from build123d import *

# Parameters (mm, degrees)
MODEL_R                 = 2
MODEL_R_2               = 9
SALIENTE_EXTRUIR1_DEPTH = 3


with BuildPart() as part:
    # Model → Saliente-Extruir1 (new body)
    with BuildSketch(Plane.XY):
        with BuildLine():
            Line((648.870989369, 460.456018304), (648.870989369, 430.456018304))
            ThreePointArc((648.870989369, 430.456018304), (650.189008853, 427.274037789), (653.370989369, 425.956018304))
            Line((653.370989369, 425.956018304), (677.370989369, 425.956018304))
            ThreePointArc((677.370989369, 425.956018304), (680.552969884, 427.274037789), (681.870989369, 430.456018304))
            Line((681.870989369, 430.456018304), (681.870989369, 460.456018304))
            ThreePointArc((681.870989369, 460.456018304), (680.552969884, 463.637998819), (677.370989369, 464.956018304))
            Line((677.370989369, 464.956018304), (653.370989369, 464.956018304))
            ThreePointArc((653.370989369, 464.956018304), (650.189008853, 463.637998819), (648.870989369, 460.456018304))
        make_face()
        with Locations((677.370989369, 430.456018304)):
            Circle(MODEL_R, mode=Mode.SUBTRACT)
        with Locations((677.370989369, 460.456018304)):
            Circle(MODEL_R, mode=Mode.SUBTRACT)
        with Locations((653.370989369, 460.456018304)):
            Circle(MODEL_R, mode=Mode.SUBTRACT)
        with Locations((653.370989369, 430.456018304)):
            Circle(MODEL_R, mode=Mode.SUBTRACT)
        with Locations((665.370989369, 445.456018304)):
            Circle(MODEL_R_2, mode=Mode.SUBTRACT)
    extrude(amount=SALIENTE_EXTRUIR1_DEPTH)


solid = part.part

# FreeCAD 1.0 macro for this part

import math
import FreeCAD as App
import Part
import Sketcher

doc = App.newDocument("Part")
body = doc.addObject("PartDesign::Body", "Body")

sketch1 = body.newObject("Sketcher::SketchObject", "Sketch")
sketch1.AttachmentSupport = (doc.getObject("XY_Plane"), [""])
sketch1.MapMode = "FlatFace"
sketch1.addGeometry([
    Part.LineSegment(App.Vector(648.870989, 460.456018, 0), App.Vector(648.870989, 430.456018, 0)),
    Part.ArcOfCircle(Part.Circle(App.Vector(653.370989, 430.456018, 0), App.Vector(0, 0, 1), 4.5), math.radians(180), math.radians(270)),
    Part.LineSegment(App.Vector(653.370989, 425.956018, 0), App.Vector(677.370989, 425.956018, 0)),
    Part.ArcOfCircle(Part.Circle(App.Vector(677.370989, 430.456018, 0), App.Vector(0, 0, 1), 4.5), math.radians(-90), math.radians(0)),
    Part.LineSegment(App.Vector(681.870989, 430.456018, 0), App.Vector(681.870989, 460.456018, 0)),
    Part.ArcOfCircle(Part.Circle(App.Vector(677.370989, 460.456018, 0), App.Vector(0, 0, 1), 4.5), math.radians(0), math.radians(90)),
    Part.LineSegment(App.Vector(677.370989, 464.956018, 0), App.Vector(653.370989, 464.956018, 0)),
    Part.ArcOfCircle(Part.Circle(App.Vector(653.370989, 460.456018, 0), App.Vector(0, 0, 1), 4.5), math.radians(90), math.radians(180)),
    Part.Circle(App.Vector(653.370989, 430.456018, 0), App.Vector(0, 0, 1), 2),
    Part.Circle(App.Vector(677.370989, 430.456018, 0), App.Vector(0, 0, 1), 2),
    Part.Circle(App.Vector(653.370989, 460.456018, 0), App.Vector(0, 0, 1), 2),
    Part.Circle(App.Vector(665.370989, 445.456018, 0), App.Vector(0, 0, 1), 9),
    Part.Circle(App.Vector(677.370989, 460.456018, 0), App.Vector(0, 0, 1), 2),
], False)
sketch1.addConstraint([
    Sketcher.Constraint("Tangent", 0, 2, 1, 1),
    Sketcher.Constraint("Tangent", 1, 2, 2, 1),
    Sketcher.Constraint("Tangent", 2, 2, 3, 1),
    Sketcher.Constraint("Tangent", 3, 2, 4, 1),
    Sketcher.Constraint("Tangent", 4, 2, 5, 1),
    Sketcher.Constraint("Tangent", 5, 2, 6, 1),
    Sketcher.Constraint("Tangent", 6, 2, 7, 1),
    Sketcher.Constraint("Tangent", 7, 2, 0, 1),
    Sketcher.Constraint("Vertical", 0),
    Sketcher.Constraint("Horizontal", 2),
    Sketcher.Constraint("Vertical", 4),
    Sketcher.Constraint("Horizontal", 6),
    Sketcher.Constraint("Coincident", 8, 3, 1, 3),
    Sketcher.Constraint("Coincident", 9, 3, 3, 3),
    Sketcher.Constraint("Coincident", 10, 3, 7, 3),
    Sketcher.Constraint("Coincident", 12, 3, 5, 3),
    Sketcher.Constraint("Equal", 1, 3),
    Sketcher.Constraint("Equal", 3, 5),
    Sketcher.Constraint("Equal", 5, 7),
    Sketcher.Constraint("Equal", 8, 9),
    Sketcher.Constraint("Equal", 9, 10),
    Sketcher.Constraint("Equal", 10, 12),
    Sketcher.Constraint("Diameter", 8, 4.0),
    Sketcher.Constraint("Diameter", 11, 18.0),
    Sketcher.Constraint("Radius", 1, 4.5),
    Sketcher.Constraint("DistanceX", 2, 1, 2, 2, 24.0),
    Sketcher.Constraint("DistanceY", 0, 2, 0, 1, 30.0),
    Sketcher.Constraint("DistanceX", 11, 3, 3, 3, 12.0),
    Sketcher.Constraint("DistanceY", 3, 3, 11, 3, 15.0),
    Sketcher.Constraint("DistanceX", -1, 1, 1, 3, 653.370989),
    Sketcher.Constraint("DistanceY", -1, 1, 1, 3, 430.456018),
])
pad1 = body.newObject("PartDesign::Pad", "Pad")
pad1.Profile = sketch1
pad1.Length = 3

doc.recompute()
